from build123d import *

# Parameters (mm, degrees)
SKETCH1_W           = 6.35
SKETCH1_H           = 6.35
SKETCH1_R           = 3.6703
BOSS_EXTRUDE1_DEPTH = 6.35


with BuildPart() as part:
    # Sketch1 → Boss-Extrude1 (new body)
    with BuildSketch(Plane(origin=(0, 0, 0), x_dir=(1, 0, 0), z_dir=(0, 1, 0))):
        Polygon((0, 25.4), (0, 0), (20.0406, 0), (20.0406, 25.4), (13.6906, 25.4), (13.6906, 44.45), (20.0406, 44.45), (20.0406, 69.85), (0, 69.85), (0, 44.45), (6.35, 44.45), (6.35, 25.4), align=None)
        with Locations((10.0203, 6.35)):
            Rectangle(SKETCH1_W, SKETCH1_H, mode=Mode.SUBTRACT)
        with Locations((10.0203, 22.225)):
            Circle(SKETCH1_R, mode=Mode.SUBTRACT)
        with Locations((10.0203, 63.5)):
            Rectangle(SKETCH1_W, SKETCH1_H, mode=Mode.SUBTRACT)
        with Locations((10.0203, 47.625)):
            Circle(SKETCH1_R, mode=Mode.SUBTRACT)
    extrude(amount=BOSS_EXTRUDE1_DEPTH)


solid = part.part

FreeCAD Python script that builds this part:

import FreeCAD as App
import Part
import Sketcher
Q = App.Units.Quantity

doc = App.newDocument("Part")
body = doc.addObject("PartDesign::Body", "Body")

# Sketch on XZ plane
sketch1 = body.newObject("Sketcher::SketchObject", "Sketch")
sketch1.AttachmentSupport = (doc.getObject("XZ_Plane"), [""])
sketch1.MapMode = "FlatFace"
sketch1.addGeometry([
    Part.LineSegment(App.Vector(0, -25.4, 0), App.Vector(0, 0, 0)),  # 0
    Part.LineSegment(App.Vector(0, 0, 0), App.Vector(20, 0, 0)),  # 1
    Part.LineSegment(App.Vector(20, 0, 0), App.Vector(20, -25.4, 0)),  # 2
    Part.LineSegment(App.Vector(20, -25.4, 0), App.Vector(13.7, -25.4, 0)),  # 3
    Part.LineSegment(App.Vector(13.7, -25.4, 0), App.Vector(13.7, -44.5, 0)),  # 4
    Part.LineSegment(App.Vector(13.7, -44.5, 0), App.Vector(20, -44.5, 0)),  # 5
    Part.LineSegment(App.Vector(20, -44.5, 0), App.Vector(20, -69.8, 0)),  # 6
    Part.LineSegment(App.Vector(20, -69.8, 0), App.Vector(0, -69.8, 0)),  # 7
    Part.LineSegment(App.Vector(0, -69.8, 0), App.Vector(0, -44.5, 0)),  # 8
    Part.LineSegment(App.Vector(0, -44.5, 0), App.Vector(6.3, -44.5, 0)),  # 9
    Part.LineSegment(App.Vector(6.3, -44.5, 0), App.Vector(6.3, -25.4, 0)),  # 10
    Part.LineSegment(App.Vector(6.3, -25.4, 0), App.Vector(0, -25.4, 0)),  # 11
    Part.LineSegment(App.Vector(13.2, -3.2, 0), App.Vector(6.8, -3.2, 0)),  # 12
    Part.LineSegment(App.Vector(6.8, -3.2, 0), App.Vector(6.8, -9.5, 0)),  # 13
    Part.LineSegment(App.Vector(6.8, -9.5, 0), App.Vector(13.2, -9.5, 0)),  # 14
    Part.LineSegment(App.Vector(13.2, -9.5, 0), App.Vector(13.2, -3.2, 0)),  # 15
    Part.Circle(App.Vector(10, -22.2, 0), App.Vector(0, 0, 1), 3.7),  # 16
    Part.Circle(App.Vector(10, -47.6, 0), App.Vector(0, 0, 1), 3.7),  # 17
    Part.LineSegment(App.Vector(13.2, -60.3, 0), App.Vector(6.8, -60.3, 0)),  # 18
    Part.LineSegment(App.Vector(6.8, -60.3, 0), App.Vector(6.8, -66.7, 0)),  # 19
    Part.LineSegment(App.Vector(6.8, -66.7, 0), App.Vector(13.2, -66.7, 0)),  # 20
    Part.LineSegment(App.Vector(13.2, -66.7, 0), App.Vector(13.2, -60.3, 0)),  # 21
], False)
sketch1.addConstraint([
    Sketcher.Constraint("Coincident", 0, 2, 1, 1),
    Sketcher.Constraint("Coincident", 1, 2, 2, 1),
    Sketcher.Constraint("Coincident", 2, 2, 3, 1),
    Sketcher.Constraint("Coincident", 3, 2, 4, 1),
    Sketcher.Constraint("Coincident", 4, 2, 5, 1),
    Sketcher.Constraint("Coincident", 5, 2, 6, 1),
    Sketcher.Constraint("Coincident", 6, 2, 7, 1),
    Sketcher.Constraint("Coincident", 7, 2, 8, 1),
    Sketcher.Constraint("Coincident", 8, 2, 9, 1),
    Sketcher.Constraint("Coincident", 9, 2, 10, 1),
    Sketcher.Constraint("Coincident", 10, 2, 11, 1),
    Sketcher.Constraint("Coincident", 11, 2, 0, 1),
    Sketcher.Constraint("Coincident", 12, 2, 13, 1),
    Sketcher.Constraint("Coincident", 13, 2, 14, 1),
    Sketcher.Constraint("Coincident", 14, 2, 15, 1),
    Sketcher.Constraint("Coincident", 15, 2, 12, 1),
    Sketcher.Constraint("Coincident", 18, 2, 19, 1),
    Sketcher.Constraint("Coincident", 19, 2, 20, 1),
    Sketcher.Constraint("Coincident", 20, 2, 21, 1),
    Sketcher.Constraint("Coincident", 21, 2, 18, 1),
    Sketcher.Constraint("Vertical", 0),
    Sketcher.Constraint("Horizontal", 1),
    Sketcher.Constraint("Vertical", 2),
    Sketcher.Constraint("Horizontal", 3),
    Sketcher.Constraint("Vertical", 4),
    Sketcher.Constraint("Horizontal", 5),
    Sketcher.Constraint("Vertical", 6),
    Sketcher.Constraint("Horizontal", 7),
    Sketcher.Constraint("Vertical", 8),
    Sketcher.Constraint("Horizontal", 9),
    Sketcher.Constraint("Vertical", 10),
    Sketcher.Constraint("Horizontal", 11),
    Sketcher.Constraint("Horizontal", 12),
    Sketcher.Constraint("Vertical", 13),
    Sketcher.Constraint("Horizontal", 14),
    Sketcher.Constraint("Vertical", 15),
    Sketcher.Constraint("Horizontal", 18),
    Sketcher.Constraint("Vertical", 19),
    Sketcher.Constraint("Horizontal", 20),
    Sketcher.Constraint("Vertical", 21),
    Sketcher.Constraint("Coincident", 0, 2, -1, 1),
    Sketcher.Constraint("Equal", 16, 17),
    Sketcher.Constraint("PointOnObject", 7, 2, -2),
    Sketcher.Constraint("Horizontal", 5, 2, 8, 2),
    Sketcher.Constraint("Horizontal", 3, 2, 10, 2),
    Sketcher.Constraint("Vertical", 16, 3, 17, 3),
    Sketcher.Constraint("Vertical", 2, 2, 5, 2),
    Sketcher.Constraint("Vertical", 13, 2, 18, 2),
    Sketcher.Constraint("Vertical", 15, 2, 20, 2),
    Sketcher.Constraint("Equal", 5, 9),
    Sketcher.Constraint("Equal", 11, 12),
    Sketcher.Constraint("Equal", 2, 6),
    Sketcher.Constraint("Equal", 20, 13),
    Sketcher.Constraint("Equal", 15, 19),
    Sketcher.Constraint("DistanceY", 0, 1, 0, 2, Q("1 in")),
    Sketcher.Constraint("Diameter", 16, Q("0.289 in")),
    Sketcher.Constraint("DistanceY", 17, 3, 16, 3, Q("1 in")),
    Sketcher.Constraint("DistanceX", 3, 2, 3, 1, Q("0.25 in")),
    Sketcher.Constraint("DistanceY", 4, 2, 4, 1, Q("0.75 in")),
    Sketcher.Constraint("DistanceY", 16, 3, 13, 2, Q("0.5 in")),
    Sketcher.Constraint("DistanceY", 18, 2, 17, 3, Q("0.5 in")),
    Sketcher.Constraint("DistanceX", 1, 1, 1, 2, Q("0.789 in")),
    Sketcher.Constraint("DistanceY", 16, 3, -1, 1, Q("0.875 in")),
    Sketcher.Constraint("DistanceX", 12, 2, 16, 3, Q("0.125 in")),
    Sketcher.Constraint("DistanceX", -1, 1, 16, 3, Q("0.3945 in")),
])
pad1 = body.newObject("PartDesign::Pad", "Pad")
pad1.Profile = sketch1
pad1.Length = Q("0.25 in")
pad1.Reversed = True

doc.recompute()
